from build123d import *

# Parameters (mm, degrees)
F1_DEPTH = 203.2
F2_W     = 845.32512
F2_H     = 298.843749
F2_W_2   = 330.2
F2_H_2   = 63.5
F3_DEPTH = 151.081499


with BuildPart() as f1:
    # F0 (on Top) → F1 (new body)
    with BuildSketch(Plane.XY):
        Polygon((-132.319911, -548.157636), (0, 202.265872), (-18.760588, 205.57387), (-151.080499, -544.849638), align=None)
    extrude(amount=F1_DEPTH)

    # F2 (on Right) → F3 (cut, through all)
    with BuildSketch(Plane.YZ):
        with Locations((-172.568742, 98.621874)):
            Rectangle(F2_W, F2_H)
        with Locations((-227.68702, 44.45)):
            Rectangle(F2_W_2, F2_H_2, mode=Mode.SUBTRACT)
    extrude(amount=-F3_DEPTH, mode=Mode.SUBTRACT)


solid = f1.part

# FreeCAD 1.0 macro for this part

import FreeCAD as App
import Part
import Sketcher
from FreeCAD import Vector
Q = App.Units.Quantity

doc = App.newDocument("Part")
body = doc.addObject("PartDesign::Body", "Body")

sketch1 = body.newObject("Sketcher::SketchObject", "Sketch")
sketch1.AttachmentSupport = (doc.getObject("XY_Plane"), [""])
sketch1.MapMode = "FlatFace"
sketch1.addGeometry(Part.LineSegment(Vector(-132.319911, -548.157636, 0), Vector(0, 202.265872, 0)), False)
sketch1.addGeometry(Part.LineSegment(Vector(0, 202.265872, 0), Vector(-18.760588, 205.57387, 0)), False)
sketch1.addGeometry(Part.LineSegment(Vector(-18.760588, 205.57387, 0), Vector(-151.080499, -544.849638, 0)), False)
sketch1.addGeometry(Part.LineSegment(Vector(-151.080499, -544.849638, 0), Vector(-132.319911, -548.157636, 0)), False)
sketch1.addConstraint(Sketcher.Constraint("Coincident", 0, 2, 1, 1))
sketch1.addConstraint(Sketcher.Constraint("Coincident", 1, 2, 2, 1))
sketch1.addConstraint(Sketcher.Constraint("Coincident", 2, 2, 3, 1))
sketch1.addConstraint(Sketcher.Constraint("Coincident", 3, 2, 0, 1))
sketch1.addConstraint(Sketcher.Constraint("PointOnObject", 0, 2, -2))
sketch1.addConstraint(Sketcher.Constraint("Perpendicular", 0, 1))
sketch1.addConstraint(Sketcher.Constraint("Perpendicular", 1, 2))
sketch1.addConstraint(Sketcher.Constraint("Perpendicular", 2, 3))
sketch1.addConstraint(Sketcher.Constraint("Distance", 0, Q("30 in")))
sketch1.addConstraint(Sketcher.Constraint("Angle", 0, Q("80 deg")))
sketch1.addConstraint(Sketcher.Constraint("Distance", 1, Q("0.75 in")))
sketch1.addConstraint(Sketcher.Constraint("DistanceY", -1, 1, 0, 2, 202.265872))
pad1 = body.newObject("PartDesign::Pad", "Pad")
pad1.Profile = sketch1
pad1.Length = Q("8 in")

sketch2 = body.newObject("Sketcher::SketchObject", "Sketch001")
sketch2.AttachmentSupport = (doc.getObject("YZ_Plane"), [""])
sketch2.MapMode = "FlatFace"
sketch2.addGeometry(Part.LineSegment(Vector(-595.231302, 248.043748, 0), Vector(-595.231302, -50.800001, 0)), False)
sketch2.addGeometry(Part.LineSegment(Vector(-595.231302, -50.800001, 0), Vector(250.093818, -50.800001, 0)), False)
sketch2.addGeometry(Part.LineSegment(Vector(250.093818, -50.800001, 0), Vector(250.093818, 248.043748, 0)), False)
sketch2.addGeometry(Part.LineSegment(Vector(250.093818, 248.043748, 0), Vector(-595.231302, 248.043748, 0)), False)
sketch2.addGeometry(Part.LineSegment(Vector(-62.58702, 12.7, 0), Vector(-392.78702, 12.7, 0)), False)
sketch2.addGeometry(Part.LineSegment(Vector(-392.78702, 12.7, 0), Vector(-392.78702, 76.2, 0)), False)
sketch2.addGeometry(Part.LineSegment(Vector(-392.78702, 76.2, 0), Vector(-62.58702, 76.2, 0)), False)
sketch2.addGeometry(Part.LineSegment(Vector(-62.58702, 76.2, 0), Vector(-62.58702, 12.7, 0)), False)
sketch2.addConstraint(Sketcher.Constraint("Coincident", 0, 2, 1, 1))
sketch2.addConstraint(Sketcher.Constraint("Coincident", 1, 2, 2, 1))
sketch2.addConstraint(Sketcher.Constraint("Coincident", 2, 2, 3, 1))
sketch2.addConstraint(Sketcher.Constraint("Coincident", 3, 2, 0, 1))
sketch2.addConstraint(Sketcher.Constraint("Coincident", 4, 2, 5, 1))
sketch2.addConstraint(Sketcher.Constraint("Coincident", 5, 2, 6, 1))
sketch2.addConstraint(Sketcher.Constraint("Coincident", 6, 2, 7, 1))
sketch2.addConstraint(Sketcher.Constraint("Coincident", 7, 2, 4, 1))
sketch2.addConstraint(Sketcher.Constraint("Vertical", 0))
sketch2.addConstraint(Sketcher.Constraint("Horizontal", 1))
sketch2.addConstraint(Sketcher.Constraint("Vertical", 2))
sketch2.addConstraint(Sketcher.Constraint("Horizontal", 3))
sketch2.addConstraint(Sketcher.Constraint("Horizontal", 4))
sketch2.addConstraint(Sketcher.Constraint("Vertical", 5))
sketch2.addConstraint(Sketcher.Constraint("Horizontal", 6))
sketch2.addConstraint(Sketcher.Constraint("Vertical", 7))
sketch2.addConstraint(Sketcher.Constraint("DistanceX", 4, 2, 4, 1, Q("13 in")))
sketch2.addConstraint(Sketcher.Constraint("DistanceY", 5, 1, 5, 2, Q("2.5 in")))
sketch2.addConstraint(Sketcher.Constraint("DistanceY", 0, 2, -1, 1, Q("2 in")))
sketch2.addConstraint(Sketcher.Constraint("DistanceY", -1, 1, 5, 2, Q("3 in")))
sketch2.addConstraint(Sketcher.Constraint("DistanceX", 1, 1, 1, 2, 845.32512))
sketch2.addConstraint(Sketcher.Constraint("DistanceY", 0, 2, 0, 1, 298.843749))
sketch2.addConstraint(Sketcher.Constraint("DistanceX", 0, 2, -1, 1, 595.231302))
sketch2.addConstraint(Sketcher.Constraint("DistanceX", 4, 2, -1, 1, 392.78702))
pocket1 = body.newObject("PartDesign::Pocket", "Pocket")
pocket1.Profile = sketch2
pocket1.Type = "ThroughAll"

doc.recompute()
